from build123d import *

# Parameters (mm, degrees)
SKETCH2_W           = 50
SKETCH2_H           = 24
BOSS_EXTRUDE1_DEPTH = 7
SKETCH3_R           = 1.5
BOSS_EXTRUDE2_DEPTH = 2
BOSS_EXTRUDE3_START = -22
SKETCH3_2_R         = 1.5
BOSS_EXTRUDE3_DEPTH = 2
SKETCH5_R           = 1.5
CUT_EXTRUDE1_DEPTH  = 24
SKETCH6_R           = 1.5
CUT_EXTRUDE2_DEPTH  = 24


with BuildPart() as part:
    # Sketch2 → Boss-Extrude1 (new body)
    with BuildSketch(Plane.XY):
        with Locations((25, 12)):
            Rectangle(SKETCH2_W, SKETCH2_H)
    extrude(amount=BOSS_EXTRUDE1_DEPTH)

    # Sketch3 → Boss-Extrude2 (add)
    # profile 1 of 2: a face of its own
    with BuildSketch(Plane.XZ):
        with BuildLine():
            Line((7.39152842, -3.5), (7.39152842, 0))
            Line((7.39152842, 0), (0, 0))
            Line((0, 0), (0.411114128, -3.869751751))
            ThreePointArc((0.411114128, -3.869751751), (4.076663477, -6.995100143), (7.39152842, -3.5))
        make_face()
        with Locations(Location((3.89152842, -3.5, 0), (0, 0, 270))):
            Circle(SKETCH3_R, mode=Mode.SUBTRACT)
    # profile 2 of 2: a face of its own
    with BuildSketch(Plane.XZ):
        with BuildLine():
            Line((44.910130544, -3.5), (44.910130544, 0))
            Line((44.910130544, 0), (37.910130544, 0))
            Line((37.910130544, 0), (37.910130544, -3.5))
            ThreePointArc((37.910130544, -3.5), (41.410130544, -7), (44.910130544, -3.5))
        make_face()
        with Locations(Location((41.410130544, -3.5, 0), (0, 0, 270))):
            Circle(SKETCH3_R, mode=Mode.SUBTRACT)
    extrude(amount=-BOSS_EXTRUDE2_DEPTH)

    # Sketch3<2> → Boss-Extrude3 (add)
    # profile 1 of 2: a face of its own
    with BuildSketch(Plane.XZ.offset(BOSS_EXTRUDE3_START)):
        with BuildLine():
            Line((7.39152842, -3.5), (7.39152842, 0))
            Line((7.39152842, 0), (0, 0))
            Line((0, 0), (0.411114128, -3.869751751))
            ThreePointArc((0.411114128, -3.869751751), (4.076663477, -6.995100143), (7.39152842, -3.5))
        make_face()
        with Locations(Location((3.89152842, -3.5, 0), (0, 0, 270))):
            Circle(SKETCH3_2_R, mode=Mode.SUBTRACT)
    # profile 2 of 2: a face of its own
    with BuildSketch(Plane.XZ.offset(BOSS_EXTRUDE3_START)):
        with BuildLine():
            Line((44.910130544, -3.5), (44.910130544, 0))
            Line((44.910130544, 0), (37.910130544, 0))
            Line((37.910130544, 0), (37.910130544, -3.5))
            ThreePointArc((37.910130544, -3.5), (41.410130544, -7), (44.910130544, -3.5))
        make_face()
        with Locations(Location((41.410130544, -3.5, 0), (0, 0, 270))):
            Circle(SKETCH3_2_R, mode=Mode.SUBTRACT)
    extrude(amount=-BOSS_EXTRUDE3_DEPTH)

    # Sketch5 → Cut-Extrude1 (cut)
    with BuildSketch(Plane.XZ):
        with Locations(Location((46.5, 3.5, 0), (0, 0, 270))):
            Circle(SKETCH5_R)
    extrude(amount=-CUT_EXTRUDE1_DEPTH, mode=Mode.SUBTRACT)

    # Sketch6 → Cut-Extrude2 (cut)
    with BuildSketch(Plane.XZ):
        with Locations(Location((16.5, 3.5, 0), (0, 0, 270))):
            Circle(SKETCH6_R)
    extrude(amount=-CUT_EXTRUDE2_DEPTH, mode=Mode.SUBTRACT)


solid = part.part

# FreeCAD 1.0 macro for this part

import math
import FreeCAD as App
import Part
import Sketcher
from FreeCAD import Vector


def add_polygon(sketch, points):
    """Adds a closed chain of lines whose ends are joined by coincident constraints."""
    first, n = sketch.GeometryCount, len(points)
    for a, b in zip(points, points[1:] + points[:1]):
        sketch.addGeometry(Part.LineSegment(App.Vector(*a, 0), App.Vector(*b, 0)), False)
    for i in range(n):
        sketch.addConstraint(Sketcher.Constraint("Coincident", first + i, 2, first + (i + 1) % n, 1))

doc = App.newDocument("Part")
body = doc.addObject("PartDesign::Body", "Body")

# Sketch on XY plane
sketch1 = body.newObject("Sketcher::SketchObject", "Sketch")
sketch1.AttachmentSupport = (doc.getObject("XY_Plane"), [""])
sketch1.MapMode = "FlatFace"
add_polygon(sketch1, [(0, 24), (0, 0), (50, 0), (50, 24)])  # lines 0-3
sketch1.addConstraint([
    Sketcher.Constraint("Vertical", 0),
    Sketcher.Constraint("Horizontal", 1),
    Sketcher.Constraint("Vertical", 2),
    Sketcher.Constraint("Horizontal", 3),
    Sketcher.Constraint("Coincident", 0, 2, -1, 1),
    Sketcher.Constraint("DistanceX", 1, 1, 1, 2, 50.0),
    Sketcher.Constraint("DistanceY", 0, 2, 0, 1, 24.0),
])
pad1 = body.newObject("PartDesign::Pad", "Pad")
pad1.Profile = sketch1
pad1.Length = 7

# Sketch on XZ plane
sketch2 = body.newObject("Sketcher::SketchObject", "Sketch001")
sketch2.AttachmentSupport = (doc.getObject("XZ_Plane"), [""])
sketch2.MapMode = "FlatFace"
sketch2.addGeometry([
    Part.LineSegment(Vector(7.391528, -3.5, 0), Vector(7.391528, 0, 0)),  # 0
    Part.LineSegment(Vector(7.391528, 0, 0), Vector(0, 0, 0)),  # 1
    Part.LineSegment(Vector(0, 0, 0), Vector(0.411114, -3.869752, 0)),  # 2
    Part.ArcOfCircle(Part.Circle(Vector(3.891528, -3.5, 0), Vector(0, 0, 1), 3.5), math.radians(-173.935766), math.radians(0)),  # 3
    Part.Circle(Vector(3.891528, -3.5, 0), Vector(0, 0, 1), 1.5),  # 4
    Part.LineSegment(Vector(44.910131, -3.5, 0), Vector(44.910131, 0, 0)),  # 5
    Part.LineSegment(Vector(44.910131, 0, 0), Vector(37.910131, 0, 0)),  # 6
    Part.LineSegment(Vector(37.910131, 0, 0), Vector(37.910131, -3.5, 0)),  # 7
    Part.ArcOfCircle(Part.Circle(Vector(41.410131, -3.5, 0), Vector(0, 0, 1), 3.5), math.radians(180), math.radians(360)),  # 8
    Part.Circle(Vector(41.410131, -3.5, 0), Vector(0, 0, 1), 1.5),  # 9
], False)
sketch2.addConstraint([
    Sketcher.Constraint("Coincident", 0, 2, 1, 1),
    Sketcher.Constraint("Coincident", 1, 2, 2, 1),
    Sketcher.Constraint("Tangent", 2, 2, 3, 1),
    Sketcher.Constraint("Tangent", 3, 2, 0, 1),
    Sketcher.Constraint("Coincident", 5, 2, 6, 1),
    Sketcher.Constraint("Coincident", 6, 2, 7, 1),
    Sketcher.Constraint("Tangent", 7, 2, 8, 1),
    Sketcher.Constraint("Tangent", 8, 2, 5, 1),
    Sketcher.Constraint("Vertical", 0),
    Sketcher.Constraint("Horizontal", 1),
    Sketcher.Constraint("Vertical", 5),
    Sketcher.Constraint("Horizontal", 6),
    Sketcher.Constraint("Vertical", 7),
    Sketcher.Constraint("Coincident", 1, 2, -1, 1),
    Sketcher.Constraint("Coincident", 4, 3, 3, 3),
    Sketcher.Constraint("Coincident", 9, 3, 8, 3),
    Sketcher.Constraint("Equal", 3, 8),
    Sketcher.Constraint("Equal", 4, 9),
    Sketcher.Constraint("PointOnObject", 5, 2, -1),
    Sketcher.Constraint("Horizontal", 4, 3, 8, 3),
    Sketcher.Constraint("Diameter", 4, 3.0),
    Sketcher.Constraint("Radius", 3, 3.5),
    Sketcher.Constraint("DistanceY", 0, 1, 0, 2, 3.5),
    Sketcher.Constraint("DistanceX", 1, 2, 1, 1, 7.391528),
    Sketcher.Constraint("DistanceX", -1, 1, 8, 3, 41.410131),
])
pad2 = body.newObject("PartDesign::Pad", "Pad001")
pad2.Profile = sketch2
pad2.Length = 2
pad2.Reversed = True

# Sketch on XZ plane
sketch3 = body.newObject("Sketcher::SketchObject", "Sketch002")
sketch3.AttachmentSupport = (doc.getObject("XZ_Plane"), [""])
sketch3.MapMode = "FlatFace"
sketch3.AttachmentOffset = App.Placement(Vector(0, 0, -22), App.Rotation())
sketch3.addGeometry([
    Part.LineSegment(Vector(7.391528, -3.5, 0), Vector(7.391528, 0, 0)),  # 0
    Part.LineSegment(Vector(7.391528, 0, 0), Vector(0, 0, 0)),  # 1
    Part.LineSegment(Vector(0, 0, 0), Vector(0.411114, -3.869752, 0)),  # 2
    Part.ArcOfCircle(Part.Circle(Vector(3.891528, -3.5, 0), Vector(0, 0, 1), 3.5), math.radians(-173.935766), math.radians(0)),  # 3
    Part.Circle(Vector(3.891528, -3.5, 0), Vector(0, 0, 1), 1.5),  # 4
    Part.LineSegment(Vector(44.910131, -3.5, 0), Vector(44.910131, 0, 0)),  # 5
    Part.LineSegment(Vector(44.910131, 0, 0), Vector(37.910131, 0, 0)),  # 6
    Part.LineSegment(Vector(37.910131, 0, 0), Vector(37.910131, -3.5, 0)),  # 7
    Part.ArcOfCircle(Part.Circle(Vector(41.410131, -3.5, 0), Vector(0, 0, 1), 3.5), math.radians(180), math.radians(360)),  # 8
    Part.Circle(Vector(41.410131, -3.5, 0), Vector(0, 0, 1), 1.5),  # 9
], False)
sketch3.addConstraint([
    Sketcher.Constraint("Coincident", 0, 2, 1, 1),
    Sketcher.Constraint("Coincident", 1, 2, 2, 1),
    Sketcher.Constraint("Tangent", 2, 2, 3, 1),
    Sketcher.Constraint("Tangent", 3, 2, 0, 1),
    Sketcher.Constraint("Coincident", 5, 2, 6, 1),
    Sketcher.Constraint("Coincident", 6, 2, 7, 1),
    Sketcher.Constraint("Tangent", 7, 2, 8, 1),
    Sketcher.Constraint("Tangent", 8, 2, 5, 1),
    Sketcher.Constraint("Vertical", 0),
    Sketcher.Constraint("Horizontal", 1),
    Sketcher.Constraint("Vertical", 5),
    Sketcher.Constraint("Horizontal", 6),
    Sketcher.Constraint("Vertical", 7),
    Sketcher.Constraint("Coincident", 1, 2, -1, 1),
    Sketcher.Constraint("Coincident", 4, 3, 3, 3),
    Sketcher.Constraint("Coincident", 9, 3, 8, 3),
    Sketcher.Constraint("Equal", 3, 8),
    Sketcher.Constraint("Equal", 4, 9),
    Sketcher.Constraint("PointOnObject", 5, 2, -1),
    Sketcher.Constraint("Horizontal", 4, 3, 8, 3),
    Sketcher.Constraint("Diameter", 4, 3.0),
    Sketcher.Constraint("Radius", 3, 3.5),
    Sketcher.Constraint("DistanceY", 0, 1, 0, 2, 3.5),
    Sketcher.Constraint("DistanceX", 1, 2, 1, 1, 7.391528),
    Sketcher.Constraint("DistanceX", -1, 1, 8, 3, 41.410131),
])
pad3 = body.newObject("PartDesign::Pad", "Pad002")
pad3.Profile = sketch3
pad3.Length = 2
pad3.Reversed = True

# Sketch on XZ plane
sketch4 = body.newObject("Sketcher::SketchObject", "Sketch003")
sketch4.AttachmentSupport = (doc.getObject("XZ_Plane"), [""])
sketch4.MapMode = "FlatFace"
sketch4.addGeometry(Part.Circle(Vector(46.5, 3.5, 0), Vector(0, 0, 1), 1.5), False)
sketch4.addConstraint([
    Sketcher.Constraint("Diameter", 0, 3.0),
    Sketcher.Constraint("DistanceX", -1, 1, 0, 3, 46.5),
    Sketcher.Constraint("DistanceY", -1, 1, 0, 3, 3.5),
])
pocket1 = body.newObject("PartDesign::Pocket", "Pocket")
pocket1.Profile = sketch4
pocket1.Length = 24

# Sketch on XZ plane
sketch5 = body.newObject("Sketcher::SketchObject", "Sketch004")
sketch5.AttachmentSupport = (doc.getObject("XZ_Plane"), [""])
sketch5.MapMode = "FlatFace"
sketch5.addGeometry(Part.Circle(Vector(16.5, 3.5, 0), Vector(0, 0, 1), 1.5), False)
sketch5.addConstraint([
    Sketcher.Constraint("Diameter", 0, 3.0),
    Sketcher.Constraint("DistanceX", -1, 1, 0, 3, 16.5),
    Sketcher.Constraint("DistanceY", -1, 1, 0, 3, 3.5),
])
pocket2 = body.newObject("PartDesign::Pocket", "Pocket001")
pocket2.Profile = sketch5
pocket2.Length = 24

doc.recompute()
